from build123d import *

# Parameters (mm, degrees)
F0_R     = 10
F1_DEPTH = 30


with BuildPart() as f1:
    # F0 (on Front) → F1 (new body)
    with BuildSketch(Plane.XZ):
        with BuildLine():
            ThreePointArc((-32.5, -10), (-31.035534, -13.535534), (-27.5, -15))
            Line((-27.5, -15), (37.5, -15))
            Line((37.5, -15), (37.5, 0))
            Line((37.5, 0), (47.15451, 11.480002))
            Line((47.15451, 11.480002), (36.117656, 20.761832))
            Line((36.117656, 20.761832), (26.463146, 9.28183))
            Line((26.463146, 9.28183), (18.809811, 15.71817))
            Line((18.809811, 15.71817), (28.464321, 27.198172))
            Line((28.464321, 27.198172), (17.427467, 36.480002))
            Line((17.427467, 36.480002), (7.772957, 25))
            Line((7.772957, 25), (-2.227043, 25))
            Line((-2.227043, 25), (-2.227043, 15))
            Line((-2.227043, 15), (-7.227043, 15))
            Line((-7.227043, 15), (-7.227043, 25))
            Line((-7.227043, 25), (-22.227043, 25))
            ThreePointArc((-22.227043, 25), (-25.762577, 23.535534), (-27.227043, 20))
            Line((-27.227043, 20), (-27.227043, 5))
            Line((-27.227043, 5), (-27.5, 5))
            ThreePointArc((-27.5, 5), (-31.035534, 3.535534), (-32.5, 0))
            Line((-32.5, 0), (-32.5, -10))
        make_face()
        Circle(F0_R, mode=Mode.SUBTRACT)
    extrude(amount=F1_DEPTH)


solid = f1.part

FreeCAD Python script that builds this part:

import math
import FreeCAD as App
import Part
import Sketcher

V = App.Vector
Q = App.Units.Quantity

doc = App.newDocument("Part")
body = doc.addObject("PartDesign::Body", "Body")

# Sketch on XZ plane
sketch1 = body.newObject("Sketcher::SketchObject", "Sketch")
sketch1.AttachmentSupport = (doc.getObject("XZ_Plane"), [""])
sketch1.MapMode = "FlatFace"
sketch1.addGeometry(Part.ArcOfCircle(Part.Circle(V(-27.5, -10, 0), V(0, 0, 1), 5), math.radians(180), math.radians(270)), False)
sketch1.addGeometry(Part.LineSegment(V(-27.5, -15, 0), V(37.5, -15, 0)), False)
sketch1.addGeometry(Part.LineSegment(V(37.5, -15, 0), V(37.5, 0, 0)), False)
sketch1.addGeometry(Part.LineSegment(V(37.5, 0, 0), V(47.15, 11.48, 0)), False)
sketch1.addGeometry(Part.LineSegment(V(47.15, 11.48, 0), V(36.12, 20.76, 0)), False)
sketch1.addGeometry(Part.LineSegment(V(36.12, 20.76, 0), V(26.46, 9.28, 0)), False)
sketch1.addGeometry(Part.LineSegment(V(26.46, 9.28, 0), V(18.81, 15.72, 0)), False)
sketch1.addGeometry(Part.LineSegment(V(18.81, 15.72, 0), V(28.46, 27.2, 0)), False)
sketch1.addGeometry(Part.LineSegment(V(28.46, 27.2, 0), V(17.43, 36.48, 0)), False)
sketch1.addGeometry(Part.LineSegment(V(17.43, 36.48, 0), V(7.77, 25, 0)), False)
sketch1.addGeometry(Part.LineSegment(V(7.77, 25, 0), V(-2.23, 25, 0)), False)
sketch1.addGeometry(Part.LineSegment(V(-2.23, 25, 0), V(-2.23, 15, 0)), False)
sketch1.addGeometry(Part.LineSegment(V(-2.23, 15, 0), V(-7.23, 15, 0)), False)
sketch1.addGeometry(Part.LineSegment(V(-7.23, 15, 0), V(-7.23, 25, 0)), False)
sketch1.addGeometry(Part.LineSegment(V(-7.23, 25, 0), V(-22.23, 25, 0)), False)
sketch1.addGeometry(Part.ArcOfCircle(Part.Circle(V(-22.23, 20, 0), V(0, 0, 1), 5), math.radians(90), math.radians(180)), False)
sketch1.addGeometry(Part.LineSegment(V(-27.23, 20, 0), V(-27.23, 5, 0)), False)
sketch1.addGeometry(Part.LineSegment(V(-27.23, 5, 0), V(-27.5, 5, 0)), False)
sketch1.addGeometry(Part.ArcOfCircle(Part.Circle(V(-27.5, 0, 0), V(0, 0, 1), 5), math.radians(90), math.radians(180)), False)
sketch1.addGeometry(Part.LineSegment(V(-32.5, 0, 0), V(-32.5, -10, 0)), False)
sketch1.addGeometry(Part.Circle(V(0, 0, 0), V(0, 0, 1), 10), False)
sketch1.addConstraint(Sketcher.Constraint("Tangent", 0, 2, 1, 1))
sketch1.addConstraint(Sketcher.Constraint("Coincident", 1, 2, 2, 1))
sketch1.addConstraint(Sketcher.Constraint("Coincident", 2, 2, 3, 1))
sketch1.addConstraint(Sketcher.Constraint("Coincident", 3, 2, 4, 1))
sketch1.addConstraint(Sketcher.Constraint("Coincident", 4, 2, 5, 1))
sketch1.addConstraint(Sketcher.Constraint("Coincident", 5, 2, 6, 1))
sketch1.addConstraint(Sketcher.Constraint("Coincident", 6, 2, 7, 1))
sketch1.addConstraint(Sketcher.Constraint("Coincident", 7, 2, 8, 1))
sketch1.addConstraint(Sketcher.Constraint("Coincident", 8, 2, 9, 1))
sketch1.addConstraint(Sketcher.Constraint("Coincident", 9, 2, 10, 1))
sketch1.addConstraint(Sketcher.Constraint("Coincident", 10, 2, 11, 1))
sketch1.addConstraint(Sketcher.Constraint("Coincident", 11, 2, 12, 1))
sketch1.addConstraint(Sketcher.Constraint("Coincident", 12, 2, 13, 1))
sketch1.addConstraint(Sketcher.Constraint("Coincident", 13, 2, 14, 1))
sketch1.addConstraint(Sketcher.Constraint("Tangent", 14, 2, 15, 1))
sketch1.addConstraint(Sketcher.Constraint("Tangent", 15, 2, 16, 1))
sketch1.addConstraint(Sketcher.Constraint("Coincident", 16, 2, 17, 1))
sketch1.addConstraint(Sketcher.Constraint("Tangent", 17, 2, 18, 1))
sketch1.addConstraint(Sketcher.Constraint("Tangent", 18, 2, 19, 1))
sketch1.addConstraint(Sketcher.Constraint("Tangent", 19, 2, 0, 1))
sketch1.addConstraint(Sketcher.Constraint("Horizontal", 1))
sketch1.addConstraint(Sketcher.Constraint("Vertical", 2))
sketch1.addConstraint(Sketcher.Constraint("Horizontal", 10))
sketch1.addConstraint(Sketcher.Constraint("Vertical", 11))
sketch1.addConstraint(Sketcher.Constraint("Horizontal", 12))
sketch1.addConstraint(Sketcher.Constraint("Vertical", 13))
sketch1.addConstraint(Sketcher.Constraint("Horizontal", 14))
sketch1.addConstraint(Sketcher.Constraint("Vertical", 16))
sketch1.addConstraint(Sketcher.Constraint("Horizontal", 17))
sketch1.addConstraint(Sketcher.Constraint("Vertical", 19))
sketch1.addConstraint(Sketcher.Constraint("Coincident", 20, 3, -1, 1))
sketch1.addConstraint(Sketcher.Constraint("Equal", 0, 15))
sketch1.addConstraint(Sketcher.Constraint("Equal", 15, 18))
sketch1.addConstraint(Sketcher.Constraint("PointOnObject", 18, 3, -1))
sketch1.addConstraint(Sketcher.Constraint("PointOnObject", 2, 2, -1))
sketch1.addConstraint(Sketcher.Constraint("Perpendicular", 3, 4))
sketch1.addConstraint(Sketcher.Constraint("Perpendicular", 4, 5))
sketch1.addConstraint(Sketcher.Constraint("Perpendicular", 5, 6))
sketch1.addConstraint(Sketcher.Constraint("Perpendicular", 6, 7))
sketch1.addConstraint(Sketcher.Constraint("Perpendicular", 7, 8))
sketch1.addConstraint(Sketcher.Constraint("Perpendicular", 8, 9))
sketch1.addConstraint(Sketcher.Constraint("Horizontal", 10, 2, 13, 2))
sketch1.addConstraint(Sketcher.Constraint("Equal", 14, 2))
sketch1.addConstraint(Sketcher.Constraint("Equal", 10, 11))
sketch1.addConstraint(Sketcher.Constraint("Equal", 2, 16))
sketch1.addConstraint(Sketcher.Constraint("Equal", 13, 19))
sketch1.addConstraint(Sketcher.Constraint("Equal", 3, 5))
sketch1.addConstraint(Sketcher.Constraint("Equal", 5, 7))
sketch1.addConstraint(Sketcher.Constraint("Equal", 4, 8))
sketch1.addConstraint(Sketcher.Constraint("Equal", 7, 9))
sketch1.addConstraint(Sketcher.Constraint("Diameter", 20, Q("20 mm")))
sketch1.addConstraint(Sketcher.Constraint("Radius", 0, Q("5 mm")))
sketch1.addConstraint(Sketcher.Constraint("DistanceX", 1, 1, 1, 2, Q("65 mm")))
sketch1.addConstraint(Sketcher.Constraint("DistanceX", 10, 2, 10, 1, Q("10 mm")))
sketch1.addConstraint(Sketcher.Constraint("DistanceX", 12, 2, 12, 1, Q("5 mm")))
sketch1.addConstraint(Sketcher.Constraint("Distance", 3, Q("15 mm")))
sketch1.addConstraint(Sketcher.Constraint("Distance", 6, Q("10 mm")))
sketch1.addConstraint(Sketcher.Constraint("DistanceX", 0, 3, -1, 1, Q("27.5 mm")))
sketch1.addConstraint(Sketcher.Constraint("DistanceY", 1, 2, 3, 2, Q("26.480002 mm")))
pad1 = body.newObject("PartDesign::Pad", "Pad")
pad1.Profile = sketch1
pad1.Length = 30

doc.recompute()
